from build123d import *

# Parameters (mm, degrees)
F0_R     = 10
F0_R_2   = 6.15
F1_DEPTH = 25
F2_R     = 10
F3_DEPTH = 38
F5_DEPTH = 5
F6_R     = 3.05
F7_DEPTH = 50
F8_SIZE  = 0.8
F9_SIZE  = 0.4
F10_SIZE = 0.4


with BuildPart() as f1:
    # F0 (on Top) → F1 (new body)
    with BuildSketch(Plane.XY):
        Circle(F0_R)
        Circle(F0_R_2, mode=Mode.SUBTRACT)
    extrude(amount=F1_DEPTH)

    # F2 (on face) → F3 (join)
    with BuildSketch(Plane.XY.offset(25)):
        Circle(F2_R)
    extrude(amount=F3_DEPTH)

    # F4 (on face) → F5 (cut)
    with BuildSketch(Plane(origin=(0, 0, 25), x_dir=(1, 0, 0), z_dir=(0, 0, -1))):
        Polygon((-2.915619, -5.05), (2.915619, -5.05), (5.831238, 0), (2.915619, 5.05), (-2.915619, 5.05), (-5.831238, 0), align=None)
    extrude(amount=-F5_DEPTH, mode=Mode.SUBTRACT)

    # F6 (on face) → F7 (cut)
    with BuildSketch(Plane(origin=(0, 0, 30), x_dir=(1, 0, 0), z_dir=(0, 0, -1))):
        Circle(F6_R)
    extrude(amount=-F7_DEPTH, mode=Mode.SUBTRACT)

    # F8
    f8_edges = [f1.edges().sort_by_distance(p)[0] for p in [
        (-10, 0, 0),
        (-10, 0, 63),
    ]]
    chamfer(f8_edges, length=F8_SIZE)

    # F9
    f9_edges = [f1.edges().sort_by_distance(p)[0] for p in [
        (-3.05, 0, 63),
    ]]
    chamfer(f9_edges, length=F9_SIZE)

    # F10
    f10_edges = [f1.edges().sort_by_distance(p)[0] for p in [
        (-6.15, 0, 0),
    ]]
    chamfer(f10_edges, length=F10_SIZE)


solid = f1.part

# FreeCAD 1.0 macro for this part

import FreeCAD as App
import Part
import Sketcher
from FreeCAD import Vector
Q = App.Units.Quantity


def edges_at(feature, points):
    """Names of the edges that pass closest to the given points."""
    edges = feature.Shape.Edges
    near = lambda p: min(range(len(edges)), key=lambda i: edges[i].distToShape(Part.Vertex(*p))[0])
    return sorted({f"Edge{near(p) + 1}" for p in points})


def add_polygon(sketch, points):
    """Adds a closed chain of lines whose ends are joined by coincident constraints."""
    first, n = sketch.GeometryCount, len(points)
    for a, b in zip(points, points[1:] + points[:1]):
        sketch.addGeometry(Part.LineSegment(App.Vector(*a, 0), App.Vector(*b, 0)), False)
    for i in range(n):
        sketch.addConstraint(Sketcher.Constraint("Coincident", first + i, 2, first + (i + 1) % n, 1))

doc = App.newDocument("Part")
body = doc.addObject("PartDesign::Body", "Body")

# Sketch on XY plane
sketch1 = body.newObject("Sketcher::SketchObject", "Sketch")
sketch1.AttachmentSupport = (doc.getObject("XY_Plane"), [""])
sketch1.MapMode = "FlatFace"
sketch1.addGeometry([
    Part.Circle(Vector(0, 0, 0), Vector(0, 0, 1), 10),
    Part.Circle(Vector(0, 0, 0), Vector(0, 0, 1), 6.15),
], False)
sketch1.addConstraint([
    Sketcher.Constraint("Coincident", 0, 3, -1, 1),
    Sketcher.Constraint("Coincident", 1, 3, -1, 1),
    Sketcher.Constraint("Diameter", 0, 20.0),
    Sketcher.Constraint("Diameter", 1, 12.3),
])
pad1 = body.newObject("PartDesign::Pad", "Pad")
pad1.Profile = sketch1
pad1.Length = 25

# Sketch on XY plane
sketch2 = body.newObject("Sketcher::SketchObject", "Sketch001")
sketch2.AttachmentSupport = (doc.getObject("XY_Plane"), [""])
sketch2.MapMode = "FlatFace"
sketch2.AttachmentOffset = App.Placement(Vector(0, 0, 25), App.Rotation())
sketch2.addGeometry(Part.Circle(Vector(0, 0, 0), Vector(0, 0, 1), 10), False)
sketch2.addConstraint([
    Sketcher.Constraint("Coincident", 0, 3, -1, 1),
    Sketcher.Constraint("Diameter", 0, 20.0),
])
pad2 = body.newObject("PartDesign::Pad", "Pad001")
pad2.Profile = sketch2
pad2.Length = 38

# Sketch on XY plane
sketch3 = body.newObject("Sketcher::SketchObject", "Sketch002")
sketch3.AttachmentSupport = (doc.getObject("XY_Plane"), [""])
sketch3.MapMode = "FlatFace"
sketch3.AttachmentOffset = App.Placement(Vector(0, 0, 25), App.Rotation())
add_polygon(sketch3, [(-2.915619, 5.05), (2.915619, 5.05), (5.831238, 0), (2.915619, -5.05), (-2.915619, -5.05), (-5.831238, 0)])  # lines 0-5
sketch3.addConstraint([
    Sketcher.Constraint("Horizontal", 0),
    Sketcher.Constraint("Horizontal", 3),
    Sketcher.Constraint("Symmetric", 0, 2, 3, 2, -1, 1),
    Sketcher.Constraint("Symmetric", 1, 2, 4, 2, -1, 1),
    Sketcher.Constraint("PointOnObject", 1, 2, -1),
    Sketcher.Constraint("Parallel", 2, 5),
    Sketcher.Constraint("Vertical", 0, 2, 2, 2),
    Sketcher.Constraint("Angle", 1, Q("-59.999999 deg")),
    Sketcher.Constraint("DistanceY", 2, 2, 0, 2, 10.1),
    Sketcher.Constraint("DistanceX", 0, 1, 0, 2, 5.831238),
])
pocket1 = body.newObject("PartDesign::Pocket", "Pocket")
pocket1.Profile = sketch3
pocket1.Length = 5
pocket1.Reversed = True

# Sketch on XY plane
sketch4 = body.newObject("Sketcher::SketchObject", "Sketch003")
sketch4.AttachmentSupport = (doc.getObject("XY_Plane"), [""])
sketch4.MapMode = "FlatFace"
sketch4.AttachmentOffset = App.Placement(Vector(0, 0, 30), App.Rotation())
sketch4.addGeometry(Part.Circle(Vector(0, 0, 0), Vector(0, 0, 1), 3.05), False)
sketch4.addConstraint([
    Sketcher.Constraint("Coincident", 0, 3, -1, 1),
    Sketcher.Constraint("Diameter", 0, 6.1),
])
pocket2 = body.newObject("PartDesign::Pocket", "Pocket001")
pocket2.Profile = sketch4
pocket2.Length = 50
pocket2.Reversed = True
doc.recompute()

chamfer = body.newObject("PartDesign::Chamfer", "Chamfer")
chamfer.Base = (pocket2, edges_at(pocket2, [(-10, 0, 0), (-10, 0, 63)]))
chamfer.Size = 0.8
doc.recompute()

chamfer2 = body.newObject("PartDesign::Chamfer", "Chamfer001")
chamfer2.Base = (chamfer, edges_at(chamfer, [(-3.05, 0, 63)]))
chamfer2.Size = 0.4
doc.recompute()

chamfer3 = body.newObject("PartDesign::Chamfer", "Chamfer002")
chamfer3.Base = (chamfer2, edges_at(chamfer2, [(-6.15, 0, 0)]))
chamfer3.Size = 0.4

doc.recompute()
